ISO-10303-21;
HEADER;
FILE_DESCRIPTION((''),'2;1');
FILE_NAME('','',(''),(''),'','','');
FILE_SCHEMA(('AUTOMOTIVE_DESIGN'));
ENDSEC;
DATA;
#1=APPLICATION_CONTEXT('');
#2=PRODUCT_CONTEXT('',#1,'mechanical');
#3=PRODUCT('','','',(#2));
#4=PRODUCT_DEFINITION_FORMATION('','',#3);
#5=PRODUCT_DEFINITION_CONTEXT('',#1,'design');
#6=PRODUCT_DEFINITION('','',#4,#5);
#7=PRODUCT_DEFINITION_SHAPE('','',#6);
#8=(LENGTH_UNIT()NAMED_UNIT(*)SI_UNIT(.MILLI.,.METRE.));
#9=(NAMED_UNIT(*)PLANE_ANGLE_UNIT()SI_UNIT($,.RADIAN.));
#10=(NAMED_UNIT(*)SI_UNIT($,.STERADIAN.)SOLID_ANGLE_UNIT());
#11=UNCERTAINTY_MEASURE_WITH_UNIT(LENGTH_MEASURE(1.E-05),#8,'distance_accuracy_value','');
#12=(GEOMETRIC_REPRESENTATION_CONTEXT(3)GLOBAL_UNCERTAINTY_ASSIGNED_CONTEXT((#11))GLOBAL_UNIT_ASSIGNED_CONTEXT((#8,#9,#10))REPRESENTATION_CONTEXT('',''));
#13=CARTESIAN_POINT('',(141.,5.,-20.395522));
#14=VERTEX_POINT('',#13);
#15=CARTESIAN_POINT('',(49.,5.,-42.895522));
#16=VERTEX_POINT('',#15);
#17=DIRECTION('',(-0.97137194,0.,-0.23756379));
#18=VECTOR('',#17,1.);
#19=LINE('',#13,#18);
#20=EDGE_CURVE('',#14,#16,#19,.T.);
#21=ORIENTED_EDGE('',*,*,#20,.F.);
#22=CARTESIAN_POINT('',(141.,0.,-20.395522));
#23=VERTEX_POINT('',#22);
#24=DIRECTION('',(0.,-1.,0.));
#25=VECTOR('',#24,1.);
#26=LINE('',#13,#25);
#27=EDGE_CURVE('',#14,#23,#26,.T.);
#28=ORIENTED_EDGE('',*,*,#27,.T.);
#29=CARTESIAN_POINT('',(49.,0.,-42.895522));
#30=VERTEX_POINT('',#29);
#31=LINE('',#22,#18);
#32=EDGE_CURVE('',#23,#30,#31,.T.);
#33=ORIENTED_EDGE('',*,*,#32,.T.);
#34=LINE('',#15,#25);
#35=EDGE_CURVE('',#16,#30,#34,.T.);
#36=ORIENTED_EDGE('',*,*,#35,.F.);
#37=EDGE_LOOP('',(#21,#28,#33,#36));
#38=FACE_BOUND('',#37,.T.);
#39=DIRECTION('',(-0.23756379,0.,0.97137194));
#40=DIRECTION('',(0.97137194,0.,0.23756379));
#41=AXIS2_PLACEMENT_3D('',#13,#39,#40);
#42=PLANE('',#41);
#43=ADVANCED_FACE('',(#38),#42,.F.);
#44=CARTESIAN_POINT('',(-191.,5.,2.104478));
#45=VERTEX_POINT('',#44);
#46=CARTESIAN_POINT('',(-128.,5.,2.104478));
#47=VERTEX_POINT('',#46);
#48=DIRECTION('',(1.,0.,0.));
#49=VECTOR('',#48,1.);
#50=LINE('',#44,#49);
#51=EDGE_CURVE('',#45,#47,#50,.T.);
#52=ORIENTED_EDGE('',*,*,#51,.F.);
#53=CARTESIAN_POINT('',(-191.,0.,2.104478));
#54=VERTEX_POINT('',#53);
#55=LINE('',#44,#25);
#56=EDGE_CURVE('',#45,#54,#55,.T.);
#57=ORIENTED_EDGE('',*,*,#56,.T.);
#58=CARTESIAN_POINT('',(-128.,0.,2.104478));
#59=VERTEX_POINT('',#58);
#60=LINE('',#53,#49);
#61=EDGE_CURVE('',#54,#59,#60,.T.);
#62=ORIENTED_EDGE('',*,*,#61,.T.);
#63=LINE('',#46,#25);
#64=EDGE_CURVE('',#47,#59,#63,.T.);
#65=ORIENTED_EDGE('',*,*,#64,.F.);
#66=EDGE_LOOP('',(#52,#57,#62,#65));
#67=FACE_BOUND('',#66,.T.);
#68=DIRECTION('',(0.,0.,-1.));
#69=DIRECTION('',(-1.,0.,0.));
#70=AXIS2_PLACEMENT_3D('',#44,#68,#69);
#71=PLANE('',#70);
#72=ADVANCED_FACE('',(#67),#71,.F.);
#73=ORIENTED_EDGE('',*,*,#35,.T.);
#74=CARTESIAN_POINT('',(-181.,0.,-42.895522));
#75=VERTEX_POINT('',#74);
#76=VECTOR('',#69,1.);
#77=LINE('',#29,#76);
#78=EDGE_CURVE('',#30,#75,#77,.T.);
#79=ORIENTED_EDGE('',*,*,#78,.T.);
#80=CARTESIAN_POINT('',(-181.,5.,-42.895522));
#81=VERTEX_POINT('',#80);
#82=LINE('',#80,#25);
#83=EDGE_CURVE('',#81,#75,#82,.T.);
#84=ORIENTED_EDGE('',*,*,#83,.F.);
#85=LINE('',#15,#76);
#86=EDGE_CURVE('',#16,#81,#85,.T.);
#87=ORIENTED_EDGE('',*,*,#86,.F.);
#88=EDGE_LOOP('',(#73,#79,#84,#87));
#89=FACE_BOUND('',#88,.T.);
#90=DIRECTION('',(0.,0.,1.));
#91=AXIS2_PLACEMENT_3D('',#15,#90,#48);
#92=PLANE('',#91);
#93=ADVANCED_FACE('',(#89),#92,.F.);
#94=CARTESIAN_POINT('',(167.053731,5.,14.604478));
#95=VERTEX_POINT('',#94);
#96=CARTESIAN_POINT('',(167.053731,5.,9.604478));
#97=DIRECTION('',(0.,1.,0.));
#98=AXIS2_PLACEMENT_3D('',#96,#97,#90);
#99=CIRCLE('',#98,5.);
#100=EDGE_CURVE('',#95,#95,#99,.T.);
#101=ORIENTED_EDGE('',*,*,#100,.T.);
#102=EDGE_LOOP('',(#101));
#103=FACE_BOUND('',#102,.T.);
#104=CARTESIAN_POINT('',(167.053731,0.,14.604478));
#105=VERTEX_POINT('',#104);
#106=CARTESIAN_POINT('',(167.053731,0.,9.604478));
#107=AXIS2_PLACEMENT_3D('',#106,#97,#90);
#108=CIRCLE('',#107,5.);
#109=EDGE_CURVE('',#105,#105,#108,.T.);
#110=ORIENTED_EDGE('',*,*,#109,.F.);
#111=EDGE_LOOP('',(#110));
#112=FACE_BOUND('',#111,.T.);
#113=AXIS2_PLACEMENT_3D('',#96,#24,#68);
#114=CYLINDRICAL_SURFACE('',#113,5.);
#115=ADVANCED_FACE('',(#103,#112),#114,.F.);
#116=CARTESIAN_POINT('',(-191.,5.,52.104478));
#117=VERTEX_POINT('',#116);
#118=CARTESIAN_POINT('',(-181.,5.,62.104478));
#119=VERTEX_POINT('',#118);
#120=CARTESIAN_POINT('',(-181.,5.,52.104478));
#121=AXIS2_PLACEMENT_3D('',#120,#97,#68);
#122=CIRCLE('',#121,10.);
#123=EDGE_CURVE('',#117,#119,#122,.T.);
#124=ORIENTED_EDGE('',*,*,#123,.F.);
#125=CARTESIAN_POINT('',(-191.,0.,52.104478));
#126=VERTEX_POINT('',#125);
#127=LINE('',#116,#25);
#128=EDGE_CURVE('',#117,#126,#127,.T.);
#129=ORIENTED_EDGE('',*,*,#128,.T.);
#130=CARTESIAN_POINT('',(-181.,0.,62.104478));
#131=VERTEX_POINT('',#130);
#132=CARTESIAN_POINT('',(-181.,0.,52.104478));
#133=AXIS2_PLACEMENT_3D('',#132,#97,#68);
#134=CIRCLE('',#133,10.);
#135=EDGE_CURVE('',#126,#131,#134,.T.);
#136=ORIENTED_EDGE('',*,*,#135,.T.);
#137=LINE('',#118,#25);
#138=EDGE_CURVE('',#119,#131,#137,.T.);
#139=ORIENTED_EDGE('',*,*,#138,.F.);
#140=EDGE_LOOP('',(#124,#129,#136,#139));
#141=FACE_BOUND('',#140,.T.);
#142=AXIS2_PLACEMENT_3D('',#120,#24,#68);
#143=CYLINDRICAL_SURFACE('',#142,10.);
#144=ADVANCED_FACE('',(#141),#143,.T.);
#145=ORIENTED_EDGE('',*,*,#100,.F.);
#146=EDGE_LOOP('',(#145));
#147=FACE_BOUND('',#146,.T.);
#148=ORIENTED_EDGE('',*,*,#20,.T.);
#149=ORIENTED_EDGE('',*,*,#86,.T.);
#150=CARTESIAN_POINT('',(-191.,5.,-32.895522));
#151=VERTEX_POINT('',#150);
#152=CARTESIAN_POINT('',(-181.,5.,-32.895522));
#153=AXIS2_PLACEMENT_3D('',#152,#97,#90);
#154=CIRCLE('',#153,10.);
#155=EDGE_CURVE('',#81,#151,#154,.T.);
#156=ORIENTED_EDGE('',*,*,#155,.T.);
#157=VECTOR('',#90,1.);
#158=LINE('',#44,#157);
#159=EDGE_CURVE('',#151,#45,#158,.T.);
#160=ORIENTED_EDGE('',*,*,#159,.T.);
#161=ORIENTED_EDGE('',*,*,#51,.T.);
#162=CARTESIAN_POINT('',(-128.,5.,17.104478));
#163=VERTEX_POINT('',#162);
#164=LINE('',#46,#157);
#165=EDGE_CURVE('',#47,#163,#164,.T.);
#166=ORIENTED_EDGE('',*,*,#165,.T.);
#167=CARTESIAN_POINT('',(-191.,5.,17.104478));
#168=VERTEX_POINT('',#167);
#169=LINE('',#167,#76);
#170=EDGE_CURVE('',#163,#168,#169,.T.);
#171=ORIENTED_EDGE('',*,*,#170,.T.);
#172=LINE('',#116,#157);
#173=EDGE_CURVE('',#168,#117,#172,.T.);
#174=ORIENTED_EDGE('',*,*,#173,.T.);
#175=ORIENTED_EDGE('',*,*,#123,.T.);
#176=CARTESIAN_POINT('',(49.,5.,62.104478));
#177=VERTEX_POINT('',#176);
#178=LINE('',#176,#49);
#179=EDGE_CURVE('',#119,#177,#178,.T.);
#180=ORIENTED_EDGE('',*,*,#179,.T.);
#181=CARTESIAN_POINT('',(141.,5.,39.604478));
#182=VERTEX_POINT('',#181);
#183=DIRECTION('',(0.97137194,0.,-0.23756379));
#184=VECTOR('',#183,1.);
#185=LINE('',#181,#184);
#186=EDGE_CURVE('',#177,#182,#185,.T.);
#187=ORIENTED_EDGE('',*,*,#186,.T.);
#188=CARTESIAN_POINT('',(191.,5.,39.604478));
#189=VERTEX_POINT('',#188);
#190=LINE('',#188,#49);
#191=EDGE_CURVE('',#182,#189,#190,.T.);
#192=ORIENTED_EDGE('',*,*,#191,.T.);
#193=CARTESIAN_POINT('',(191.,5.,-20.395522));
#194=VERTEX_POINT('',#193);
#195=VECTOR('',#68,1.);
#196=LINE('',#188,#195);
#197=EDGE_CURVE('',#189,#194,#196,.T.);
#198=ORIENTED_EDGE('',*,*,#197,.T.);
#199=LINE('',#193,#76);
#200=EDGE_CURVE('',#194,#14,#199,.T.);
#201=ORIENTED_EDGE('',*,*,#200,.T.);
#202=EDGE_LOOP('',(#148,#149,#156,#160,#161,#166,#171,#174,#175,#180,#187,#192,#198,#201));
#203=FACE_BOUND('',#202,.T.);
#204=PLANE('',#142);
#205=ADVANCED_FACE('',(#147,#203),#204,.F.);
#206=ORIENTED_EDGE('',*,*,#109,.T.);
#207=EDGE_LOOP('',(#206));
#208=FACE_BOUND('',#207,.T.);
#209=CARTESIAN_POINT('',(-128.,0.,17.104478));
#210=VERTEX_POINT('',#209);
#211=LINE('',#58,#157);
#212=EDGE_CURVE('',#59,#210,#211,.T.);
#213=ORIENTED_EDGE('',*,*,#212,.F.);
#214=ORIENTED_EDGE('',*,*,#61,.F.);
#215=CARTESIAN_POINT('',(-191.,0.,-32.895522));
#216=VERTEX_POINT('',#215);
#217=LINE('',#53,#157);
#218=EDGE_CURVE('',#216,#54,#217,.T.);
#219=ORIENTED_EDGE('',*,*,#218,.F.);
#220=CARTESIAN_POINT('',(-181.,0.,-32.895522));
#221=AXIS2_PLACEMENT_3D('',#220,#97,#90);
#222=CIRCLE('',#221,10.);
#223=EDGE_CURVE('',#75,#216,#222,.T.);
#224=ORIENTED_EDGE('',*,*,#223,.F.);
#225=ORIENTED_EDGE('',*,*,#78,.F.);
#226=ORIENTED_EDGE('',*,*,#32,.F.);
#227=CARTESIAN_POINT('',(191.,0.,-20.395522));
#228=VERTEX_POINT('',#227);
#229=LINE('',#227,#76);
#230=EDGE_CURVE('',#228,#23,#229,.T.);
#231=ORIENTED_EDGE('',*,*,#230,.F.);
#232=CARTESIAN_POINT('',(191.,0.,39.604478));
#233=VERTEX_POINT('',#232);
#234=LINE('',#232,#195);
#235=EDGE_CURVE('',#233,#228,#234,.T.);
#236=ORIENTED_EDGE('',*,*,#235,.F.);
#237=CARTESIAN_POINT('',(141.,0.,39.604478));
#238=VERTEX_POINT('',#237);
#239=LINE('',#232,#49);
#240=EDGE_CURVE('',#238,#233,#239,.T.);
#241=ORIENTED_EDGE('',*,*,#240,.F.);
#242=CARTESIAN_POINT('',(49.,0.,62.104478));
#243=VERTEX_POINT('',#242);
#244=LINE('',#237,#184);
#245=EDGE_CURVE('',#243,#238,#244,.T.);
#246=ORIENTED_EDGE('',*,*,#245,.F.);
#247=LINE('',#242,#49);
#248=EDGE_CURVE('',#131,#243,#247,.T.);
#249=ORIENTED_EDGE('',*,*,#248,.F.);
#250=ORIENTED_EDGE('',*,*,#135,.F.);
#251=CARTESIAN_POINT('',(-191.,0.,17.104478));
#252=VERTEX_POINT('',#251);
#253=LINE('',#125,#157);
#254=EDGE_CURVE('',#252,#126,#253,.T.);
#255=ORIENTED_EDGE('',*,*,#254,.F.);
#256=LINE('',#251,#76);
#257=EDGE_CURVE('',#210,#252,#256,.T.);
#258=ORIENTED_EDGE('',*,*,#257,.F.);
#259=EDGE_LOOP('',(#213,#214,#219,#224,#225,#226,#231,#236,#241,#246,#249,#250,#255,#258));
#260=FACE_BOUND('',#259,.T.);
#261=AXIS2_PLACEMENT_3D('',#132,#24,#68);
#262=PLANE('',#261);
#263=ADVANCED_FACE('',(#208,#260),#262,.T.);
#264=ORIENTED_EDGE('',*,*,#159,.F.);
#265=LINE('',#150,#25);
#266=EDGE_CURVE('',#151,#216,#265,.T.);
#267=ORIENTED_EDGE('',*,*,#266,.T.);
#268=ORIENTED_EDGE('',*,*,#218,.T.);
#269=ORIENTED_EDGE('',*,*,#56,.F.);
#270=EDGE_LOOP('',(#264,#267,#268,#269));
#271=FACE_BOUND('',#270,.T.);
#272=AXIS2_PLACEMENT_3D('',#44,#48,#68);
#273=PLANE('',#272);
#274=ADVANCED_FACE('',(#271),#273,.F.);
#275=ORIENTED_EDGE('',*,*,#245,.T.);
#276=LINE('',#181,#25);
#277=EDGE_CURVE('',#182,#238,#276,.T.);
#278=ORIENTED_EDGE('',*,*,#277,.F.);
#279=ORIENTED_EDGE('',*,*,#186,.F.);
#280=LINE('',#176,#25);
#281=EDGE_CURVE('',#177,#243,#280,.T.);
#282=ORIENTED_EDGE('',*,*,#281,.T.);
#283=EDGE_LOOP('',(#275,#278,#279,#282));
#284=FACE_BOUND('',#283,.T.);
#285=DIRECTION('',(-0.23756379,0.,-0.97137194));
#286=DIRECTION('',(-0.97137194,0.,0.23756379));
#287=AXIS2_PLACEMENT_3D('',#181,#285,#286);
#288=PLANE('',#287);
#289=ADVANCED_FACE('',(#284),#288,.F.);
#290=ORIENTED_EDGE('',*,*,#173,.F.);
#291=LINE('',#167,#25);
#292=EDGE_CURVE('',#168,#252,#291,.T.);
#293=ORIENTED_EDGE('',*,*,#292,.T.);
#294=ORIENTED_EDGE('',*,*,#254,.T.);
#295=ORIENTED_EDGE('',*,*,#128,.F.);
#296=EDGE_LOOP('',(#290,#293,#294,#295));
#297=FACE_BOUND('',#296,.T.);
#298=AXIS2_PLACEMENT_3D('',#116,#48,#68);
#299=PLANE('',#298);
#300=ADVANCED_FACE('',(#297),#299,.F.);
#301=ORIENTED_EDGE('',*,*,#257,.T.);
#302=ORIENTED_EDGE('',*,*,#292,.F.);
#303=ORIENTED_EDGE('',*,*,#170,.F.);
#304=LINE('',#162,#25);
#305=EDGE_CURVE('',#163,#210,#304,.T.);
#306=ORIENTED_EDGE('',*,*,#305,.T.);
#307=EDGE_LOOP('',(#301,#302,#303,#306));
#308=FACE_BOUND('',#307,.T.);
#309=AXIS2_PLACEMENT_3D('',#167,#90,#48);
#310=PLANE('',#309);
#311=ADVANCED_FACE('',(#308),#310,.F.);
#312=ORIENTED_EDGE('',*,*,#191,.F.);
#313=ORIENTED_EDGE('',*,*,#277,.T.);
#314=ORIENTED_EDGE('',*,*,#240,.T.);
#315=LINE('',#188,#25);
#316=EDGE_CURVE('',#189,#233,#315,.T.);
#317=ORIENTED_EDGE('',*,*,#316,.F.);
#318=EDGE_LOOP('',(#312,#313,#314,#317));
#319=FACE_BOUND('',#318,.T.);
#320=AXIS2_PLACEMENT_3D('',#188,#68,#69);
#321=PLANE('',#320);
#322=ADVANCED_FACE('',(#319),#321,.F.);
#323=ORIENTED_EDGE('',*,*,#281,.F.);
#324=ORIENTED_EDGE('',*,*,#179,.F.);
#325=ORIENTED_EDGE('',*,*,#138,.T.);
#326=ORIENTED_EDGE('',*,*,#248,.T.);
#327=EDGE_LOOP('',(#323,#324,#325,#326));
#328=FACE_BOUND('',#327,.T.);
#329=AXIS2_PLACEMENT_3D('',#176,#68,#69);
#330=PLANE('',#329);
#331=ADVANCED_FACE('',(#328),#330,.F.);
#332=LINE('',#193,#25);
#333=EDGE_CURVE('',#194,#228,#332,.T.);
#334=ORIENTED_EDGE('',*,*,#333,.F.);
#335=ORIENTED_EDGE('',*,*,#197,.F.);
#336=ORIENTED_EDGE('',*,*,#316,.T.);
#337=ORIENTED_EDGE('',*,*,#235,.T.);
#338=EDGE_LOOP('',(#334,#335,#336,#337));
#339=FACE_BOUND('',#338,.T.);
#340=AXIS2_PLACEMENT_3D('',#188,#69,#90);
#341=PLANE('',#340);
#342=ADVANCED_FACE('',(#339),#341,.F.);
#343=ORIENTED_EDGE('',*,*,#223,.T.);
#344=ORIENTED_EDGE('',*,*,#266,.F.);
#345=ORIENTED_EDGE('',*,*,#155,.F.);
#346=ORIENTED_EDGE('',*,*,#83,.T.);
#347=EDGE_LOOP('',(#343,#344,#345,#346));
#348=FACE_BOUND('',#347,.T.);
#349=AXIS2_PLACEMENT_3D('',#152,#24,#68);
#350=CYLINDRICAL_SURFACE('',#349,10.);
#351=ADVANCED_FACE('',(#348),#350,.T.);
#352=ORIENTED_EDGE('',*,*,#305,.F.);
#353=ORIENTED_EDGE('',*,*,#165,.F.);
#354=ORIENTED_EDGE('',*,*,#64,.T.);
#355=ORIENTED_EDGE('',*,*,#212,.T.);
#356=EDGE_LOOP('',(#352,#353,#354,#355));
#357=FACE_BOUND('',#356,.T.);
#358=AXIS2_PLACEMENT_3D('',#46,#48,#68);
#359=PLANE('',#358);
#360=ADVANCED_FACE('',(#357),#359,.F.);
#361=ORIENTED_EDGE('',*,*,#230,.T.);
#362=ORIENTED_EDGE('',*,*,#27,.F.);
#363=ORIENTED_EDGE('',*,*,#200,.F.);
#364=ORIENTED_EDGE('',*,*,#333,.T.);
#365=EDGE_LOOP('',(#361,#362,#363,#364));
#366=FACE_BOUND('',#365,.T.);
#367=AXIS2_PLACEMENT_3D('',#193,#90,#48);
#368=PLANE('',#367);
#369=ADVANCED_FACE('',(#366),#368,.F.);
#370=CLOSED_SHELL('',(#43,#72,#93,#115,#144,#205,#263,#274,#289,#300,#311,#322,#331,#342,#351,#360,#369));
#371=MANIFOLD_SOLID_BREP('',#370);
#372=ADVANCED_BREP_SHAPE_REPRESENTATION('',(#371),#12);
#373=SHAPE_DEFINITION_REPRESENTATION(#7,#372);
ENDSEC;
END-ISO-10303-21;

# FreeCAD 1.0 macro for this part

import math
import FreeCAD as App
import Part
import Sketcher
from FreeCAD import Vector

doc = App.newDocument("Part")
body = doc.addObject("PartDesign::Body", "Body")

sketch1 = body.newObject("Sketcher::SketchObject", "Sketch")
sketch1.AttachmentSupport = (doc.getObject("XZ_Plane"), [""])
sketch1.MapMode = "FlatFace"
sketch1.addGeometry(Part.LineSegment(Vector(-181, 62, 0), Vector(49, 62, 0)), False)
sketch1.addGeometry(Part.LineSegment(Vector(49, 62, 0), Vector(141, 40, 0)), False)
sketch1.addGeometry(Part.LineSegment(Vector(141, 40, 0), Vector(191, 40, 0)), False)
sketch1.addGeometry(Part.LineSegment(Vector(191, 40, 0), Vector(191, -20, 0)), False)
sketch1.addGeometry(Part.LineSegment(Vector(191, -20, 0), Vector(141, -20, 0)), False)
sketch1.addGeometry(Part.LineSegment(Vector(141, -20, 0), Vector(49, -43, 0)), False)
sketch1.addGeometry(Part.LineSegment(Vector(49, -43, 0), Vector(-181, -43, 0)), False)
sketch1.addGeometry(Part.ArcOfCircle(Part.Circle(Vector(-181, -33, 0), Vector(0, 0, 1), 10), math.radians(180), math.radians(270)), False)
sketch1.addGeometry(Part.LineSegment(Vector(-191, -33, 0), Vector(-191, 2, 0)), False)
sketch1.addGeometry(Part.LineSegment(Vector(-191, 2, 0), Vector(-128, 2, 0)), False)
sketch1.addGeometry(Part.LineSegment(Vector(-128, 2, 0), Vector(-128, 17, 0)), False)
sketch1.addGeometry(Part.LineSegment(Vector(-128, 17, 0), Vector(-191, 17, 0)), False)
sketch1.addGeometry(Part.LineSegment(Vector(-191, 17, 0), Vector(-191, 52, 0)), False)
sketch1.addGeometry(Part.ArcOfCircle(Part.Circle(Vector(-181, 52, 0), Vector(0, 0, 1), 10), math.radians(90), math.radians(180)), False)
sketch1.addGeometry(Part.Circle(Vector(167, 10, 0), Vector(0, 0, 1), 5), False)
sketch1.addConstraint(Sketcher.Constraint("Coincident", 0, 2, 1, 1))
sketch1.addConstraint(Sketcher.Constraint("Coincident", 1, 2, 2, 1))
sketch1.addConstraint(Sketcher.Constraint("Coincident", 2, 2, 3, 1))
sketch1.addConstraint(Sketcher.Constraint("Coincident", 3, 2, 4, 1))
sketch1.addConstraint(Sketcher.Constraint("Coincident", 4, 2, 5, 1))
sketch1.addConstraint(Sketcher.Constraint("Coincident", 5, 2, 6, 1))
sketch1.addConstraint(Sketcher.Constraint("Tangent", 6, 2, 7, 2))
sketch1.addConstraint(Sketcher.Constraint("Tangent", 7, 1, 8, 1))
sketch1.addConstraint(Sketcher.Constraint("Coincident", 8, 2, 9, 1))
sketch1.addConstraint(Sketcher.Constraint("Coincident", 9, 2, 10, 1))
sketch1.addConstraint(Sketcher.Constraint("Coincident", 10, 2, 11, 1))
sketch1.addConstraint(Sketcher.Constraint("Coincident", 11, 2, 12, 1))
sketch1.addConstraint(Sketcher.Constraint("Tangent", 12, 2, 13, 2))
sketch1.addConstraint(Sketcher.Constraint("Tangent", 13, 1, 0, 1))
sketch1.addConstraint(Sketcher.Constraint("Horizontal", 0))
sketch1.addConstraint(Sketcher.Constraint("Horizontal", 2))
sketch1.addConstraint(Sketcher.Constraint("Vertical", 3))
sketch1.addConstraint(Sketcher.Constraint("Horizontal", 4))
sketch1.addConstraint(Sketcher.Constraint("Horizontal", 6))
sketch1.addConstraint(Sketcher.Constraint("Vertical", 8))
sketch1.addConstraint(Sketcher.Constraint("Horizontal", 9))
sketch1.addConstraint(Sketcher.Constraint("Vertical", 10))
sketch1.addConstraint(Sketcher.Constraint("Horizontal", 11))
sketch1.addConstraint(Sketcher.Constraint("Vertical", 12))
sketch1.addConstraint(Sketcher.Constraint("Equal", 7, 13))
sketch1.addConstraint(Sketcher.Constraint("Vertical", 7, 3, 13, 3))
sketch1.addConstraint(Sketcher.Constraint("Vertical", 1, 2, 4, 2))
sketch1.addConstraint(Sketcher.Constraint("Vertical", 0, 2, 5, 2))
sketch1.addConstraint(Sketcher.Constraint("Equal", 8, 12))
sketch1.addConstraint(Sketcher.Constraint("Equal", 1, 5))
sketch1.addConstraint(Sketcher.Constraint("Diameter", 14, 10.0))
sketch1.addConstraint(Sketcher.Constraint("Radius", 7, 10.0))
sketch1.addConstraint(Sketcher.Constraint("DistanceX", 0, 1, 0, 2, 230.0))
sketch1.addConstraint(Sketcher.Constraint("DistanceX", 2, 1, 2, 2, 50.0))
sketch1.addConstraint(Sketcher.Constraint("DistanceX", 9, 1, 9, 2, 63.0))
sketch1.addConstraint(Sketcher.Constraint("DistanceY", 3, 2, 3, 1, 60.0))
sketch1.addConstraint(Sketcher.Constraint("DistanceY", 8, 1, 8, 2, 35.0))
sketch1.addConstraint(Sketcher.Constraint("DistanceY", 10, 1, 10, 2, 15.0))
sketch1.addConstraint(Sketcher.Constraint("DistanceX", 7, 3, -1, 1, 181.0))
sketch1.addConstraint(Sketcher.Constraint("DistanceX", -1, 1, 1, 2, 141.0))
sketch1.addConstraint(Sketcher.Constraint("DistanceY", 14, 3, 1, 2, 30.0))
sketch1.addConstraint(Sketcher.Constraint("DistanceX", -1, 1, 14, 3, 167.053731))
sketch1.addConstraint(Sketcher.Constraint("DistanceY", 7, 3, -1, 1, 32.895522))
pad1 = body.newObject("PartDesign::Pad", "Pad")
pad1.Profile = sketch1
pad1.Length = 5
pad1.Reversed = True

doc.recompute()
